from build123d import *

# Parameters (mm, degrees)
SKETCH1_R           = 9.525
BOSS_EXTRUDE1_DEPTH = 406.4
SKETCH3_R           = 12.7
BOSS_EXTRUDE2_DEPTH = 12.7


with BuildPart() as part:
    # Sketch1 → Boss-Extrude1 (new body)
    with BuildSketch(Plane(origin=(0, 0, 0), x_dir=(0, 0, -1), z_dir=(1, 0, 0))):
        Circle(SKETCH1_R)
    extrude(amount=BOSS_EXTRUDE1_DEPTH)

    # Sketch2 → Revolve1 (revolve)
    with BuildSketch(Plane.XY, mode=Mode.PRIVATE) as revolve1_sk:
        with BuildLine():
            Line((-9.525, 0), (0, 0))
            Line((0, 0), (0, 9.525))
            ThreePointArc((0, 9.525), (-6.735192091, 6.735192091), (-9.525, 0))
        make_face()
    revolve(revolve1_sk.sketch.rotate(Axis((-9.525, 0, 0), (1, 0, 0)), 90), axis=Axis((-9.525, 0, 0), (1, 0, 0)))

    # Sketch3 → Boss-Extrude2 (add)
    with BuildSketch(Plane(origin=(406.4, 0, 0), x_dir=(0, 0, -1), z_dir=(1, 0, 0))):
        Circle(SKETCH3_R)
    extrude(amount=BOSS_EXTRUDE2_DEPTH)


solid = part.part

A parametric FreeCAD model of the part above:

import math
import FreeCAD as App
import Part
import Sketcher
from FreeCAD import Vector
Q = App.Units.Quantity

doc = App.newDocument("Part")
body = doc.addObject("PartDesign::Body", "Body")

# Sketch on YZ plane
sketch1 = body.newObject("Sketcher::SketchObject", "Sketch")
sketch1.AttachmentSupport = (doc.getObject("YZ_Plane"), [""])
sketch1.MapMode = "FlatFace"
sketch1.addGeometry(Part.Circle(Vector(0, 0, 0), Vector(0, 0, 1), 10), False)
sketch1.addConstraint(Sketcher.Constraint("Coincident", 0, 3, -1, 1))
sketch1.addConstraint(Sketcher.Constraint("Diameter", 0, Q("0.75 in")))
pad1 = body.newObject("PartDesign::Pad", "Pad")
pad1.Profile = sketch1
pad1.Length = Q("16 in")

# Sketch on XY plane
sketch2 = body.newObject("Sketcher::SketchObject", "Sketch001")
sketch2.AttachmentSupport = (doc.getObject("XY_Plane"), [""])
sketch2.MapMode = "FlatFace"
sketch2.addGeometry(Part.LineSegment(Vector(-10, 0, 0), Vector(0, 0, 0)), False)
sketch2.addGeometry(Part.LineSegment(Vector(0, 0, 0), Vector(0, 10, 0)), False)
sketch2.addGeometry(Part.ArcOfCircle(Part.Circle(Vector(0, 0, 0), Vector(0, 0, 1), 10), math.radians(90), math.radians(180)), False)
sketch2.addConstraint(Sketcher.Constraint("Coincident", 0, 2, 1, 1))
sketch2.addConstraint(Sketcher.Constraint("Coincident", 1, 2, 2, 1))
sketch2.addConstraint(Sketcher.Constraint("Coincident", 2, 2, 0, 1))
sketch2.addConstraint(Sketcher.Constraint("Horizontal", 0))
sketch2.addConstraint(Sketcher.Constraint("Vertical", 1))
sketch2.addConstraint(Sketcher.Constraint("Coincident", 2, 3, -1, 1))
sketch2.addConstraint(Sketcher.Constraint("Coincident", 0, 2, -1, 1))
sketch2.addConstraint(Sketcher.Constraint("Radius", 2, Q("0.375 in")))
revolution = body.newObject("PartDesign::Revolution", "Revolution")
revolution.Profile = sketch2
revolution.ReferenceAxis = (sketch2, ["H_Axis"])
revolution.Angle = 360

# Sketch on YZ plane
sketch3 = body.newObject("Sketcher::SketchObject", "Sketch002")
sketch3.AttachmentSupport = (doc.getObject("YZ_Plane"), [""])
sketch3.MapMode = "FlatFace"
sketch3.AttachmentOffset = App.Placement(Vector(0, 0, 16 * 25.4), App.Rotation())
sketch3.addGeometry(Part.Circle(Vector(0, 0, 0), Vector(0, 0, 1), 13), False)
sketch3.addConstraint(Sketcher.Constraint("Coincident", 0, 3, -1, 1))
sketch3.addConstraint(Sketcher.Constraint("Diameter", 0, Q("1 in")))
pad2 = body.newObject("PartDesign::Pad", "Pad001")
pad2.Profile = sketch3
pad2.Length = Q("0.5 in")

doc.recompute()
